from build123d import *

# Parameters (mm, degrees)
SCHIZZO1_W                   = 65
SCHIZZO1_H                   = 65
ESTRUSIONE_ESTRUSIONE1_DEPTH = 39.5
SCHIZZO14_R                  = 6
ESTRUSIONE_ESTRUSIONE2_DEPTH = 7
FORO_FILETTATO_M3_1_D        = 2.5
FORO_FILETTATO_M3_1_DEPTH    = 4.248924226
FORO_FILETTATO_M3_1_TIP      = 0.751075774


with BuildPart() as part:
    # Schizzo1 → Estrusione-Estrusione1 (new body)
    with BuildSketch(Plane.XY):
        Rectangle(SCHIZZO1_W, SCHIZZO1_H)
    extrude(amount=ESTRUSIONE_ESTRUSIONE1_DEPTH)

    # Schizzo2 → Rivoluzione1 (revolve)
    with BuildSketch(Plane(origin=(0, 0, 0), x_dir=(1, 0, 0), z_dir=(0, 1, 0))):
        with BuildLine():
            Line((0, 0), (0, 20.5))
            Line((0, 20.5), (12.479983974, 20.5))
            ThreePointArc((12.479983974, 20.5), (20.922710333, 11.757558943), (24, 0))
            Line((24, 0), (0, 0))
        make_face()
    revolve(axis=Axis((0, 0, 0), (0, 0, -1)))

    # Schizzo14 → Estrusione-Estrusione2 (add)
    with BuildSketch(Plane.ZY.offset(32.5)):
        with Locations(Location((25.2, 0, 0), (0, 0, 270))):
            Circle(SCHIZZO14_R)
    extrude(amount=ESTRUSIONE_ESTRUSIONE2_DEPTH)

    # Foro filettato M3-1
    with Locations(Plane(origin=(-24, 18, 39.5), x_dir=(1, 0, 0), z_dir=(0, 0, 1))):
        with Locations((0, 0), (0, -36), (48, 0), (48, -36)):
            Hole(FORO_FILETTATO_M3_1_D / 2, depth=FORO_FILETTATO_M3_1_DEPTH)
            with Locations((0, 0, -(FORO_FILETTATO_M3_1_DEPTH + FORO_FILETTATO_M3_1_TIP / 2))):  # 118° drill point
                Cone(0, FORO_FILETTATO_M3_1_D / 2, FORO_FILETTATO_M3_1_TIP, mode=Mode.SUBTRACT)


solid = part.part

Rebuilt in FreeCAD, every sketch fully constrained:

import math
import FreeCAD as App
import Part
import Sketcher
from FreeCAD import Vector
Q = App.Units.Quantity

doc = App.newDocument("Part")
body = doc.addObject("PartDesign::Body", "Body")

# Sketch on XY plane
sketch1 = doc.addObject("Sketcher::SketchObject", "Sketch")
body.addObject(sketch1)
sketch1.AttachmentSupport = (doc.XY_Plane, [""])
sketch1.MapMode = "FlatFace"
sketch1.addGeometry([
    Part.LineSegment(Vector(-32, 32, 0), Vector(-32, -32, 0)),
    Part.LineSegment(Vector(-32, -32, 0), Vector(32, -32, 0)),
    Part.LineSegment(Vector(32, -32, 0), Vector(32, 32, 0)),
    Part.LineSegment(Vector(32, 32, 0), Vector(-32, 32, 0)),
], False)
sketch1.addConstraint([
    Sketcher.Constraint("Coincident", 0, 2, 1, 1),
    Sketcher.Constraint("Coincident", 1, 2, 2, 1),
    Sketcher.Constraint("Coincident", 2, 2, 3, 1),
    Sketcher.Constraint("Coincident", 3, 2, 0, 1),
    Sketcher.Constraint("Vertical", 0),
    Sketcher.Constraint("Horizontal", 1),
    Sketcher.Constraint("Vertical", 2),
    Sketcher.Constraint("Horizontal", 3),
    Sketcher.Constraint("Symmetric", 0, 2, 2, 2, -1, 1),
    Sketcher.Constraint("Equal", 3, 0),
    Sketcher.Constraint("DistanceX", 1, 1, 1, 2, Q("65 mm")),
])
pad1 = doc.addObject("PartDesign::Pad", "Pad")
body.addObject(pad1)
pad1.Profile = sketch1
pad1.Length = 39.5

# Sketch on XZ plane
sketch2 = doc.addObject("Sketcher::SketchObject", "Sketch001")
body.addObject(sketch2)
sketch2.AttachmentSupport = (doc.XZ_Plane, [""])
sketch2.MapMode = "FlatFace"
sketch2.addGeometry([
    Part.LineSegment(Vector(0, -20, 0), Vector(0, 0, 0)),
    Part.LineSegment(Vector(0, 0, 0), Vector(24, 0, 0)),
    Part.ArcOfCircle(Part.Circle(Vector(0, 0, 0), Vector(0, 0, 1), 24), math.radians(-59), math.radians(0)),
    Part.LineSegment(Vector(12, -20, 0), Vector(0, -20, 0)),
], False)
sketch2.addConstraint([
    Sketcher.Constraint("Coincident", 0, 2, 1, 1),
    Sketcher.Constraint("Coincident", 1, 2, 2, 2),
    Sketcher.Constraint("Coincident", 2, 1, 3, 1),
    Sketcher.Constraint("Coincident", 3, 2, 0, 1),
    Sketcher.Constraint("Vertical", 0),
    Sketcher.Constraint("Horizontal", 1),
    Sketcher.Constraint("Horizontal", 3),
    Sketcher.Constraint("Coincident", 2, 3, -1, 1),
    Sketcher.Constraint("Coincident", 0, 2, -1, 1),
    Sketcher.Constraint("Radius", 2, Q("24 mm")),
    Sketcher.Constraint("DistanceY", 0, 1, 0, 2, Q("20.5 mm")),
])
revolution = doc.addObject("PartDesign::Revolution", "Revolution")
body.addObject(revolution)
revolution.Profile = sketch2
revolution.ReferenceAxis = (sketch2, ["V_Axis"])
revolution.Angle = 360

# Sketch on YZ plane
sketch3 = doc.addObject("Sketcher::SketchObject", "Sketch002")
body.addObject(sketch3)
sketch3.AttachmentSupport = (doc.YZ_Plane, [""])
sketch3.MapMode = "FlatFace"
sketch3.AttachmentOffset = App.Placement(Vector(0, 0, -32.5), App.Rotation())
sketch3.addGeometry(Part.Circle(Vector(0, 25, 0), Vector(0, 0, 1), 6), False)
sketch3.addConstraint([
    Sketcher.Constraint("PointOnObject", 0, 3, -2),
    Sketcher.Constraint("Diameter", 0, Q("12 mm")),
    Sketcher.Constraint("DistanceY", -1, 1, 0, 3, Q("25.2 mm")),
])
pad2 = doc.addObject("PartDesign::Pad", "Pad001")
body.addObject(pad2)
pad2.Profile = sketch3
pad2.Length = 7
pad2.Reversed = True

# Sketch on XY plane
sketch4 = doc.addObject("Sketcher::SketchObject", "Sketch003")
body.addObject(sketch4)
sketch4.AttachmentSupport = (doc.XY_Plane, [""])
sketch4.MapMode = "FlatFace"
sketch4.AttachmentOffset = App.Placement(Vector(0, 0, 39.5), App.Rotation())
sketch4.addGeometry([
    Part.Circle(Vector(-24, 18, 0), Vector(0, 0, 1), 1.2),
    Part.Circle(Vector(-24, -18, 0), Vector(0, 0, 1), 1.2),
    Part.Circle(Vector(24, 18, 0), Vector(0, 0, 1), 1.2),
    Part.Circle(Vector(24, -18, 0), Vector(0, 0, 1), 1.2),
], False)
sketch4.addConstraint([
    Sketcher.Constraint("Equal", 0, 1),
    Sketcher.Constraint("Equal", 1, 2),
    Sketcher.Constraint("Equal", 2, 3),
    Sketcher.Constraint("Symmetric", 1, 3, 2, 3, -1, 1),
    Sketcher.Constraint("Symmetric", 0, 3, 3, 3, -1, 1),
    Sketcher.Constraint("Symmetric", 0, 3, 2, 3, -2),
    Sketcher.Constraint("Diameter", 0, Q("2.5 mm")),
    Sketcher.Constraint("DistanceX", 0, 3, -1, 1, Q("24 mm")),
    Sketcher.Constraint("DistanceY", -1, 1, 0, 3, Q("18 mm")),
])
doc.recompute()
hole = doc.addObject("PartDesign::Hole", "Hole")
body.addObject(hole)
hole.Profile = sketch4
hole.ThreadType = "None"
hole.Diameter = 2.5
hole.DepthType = "Dimension"
hole.Depth = 4.248924
hole.DrillPoint = "Angled"
hole.DrillPointAngle = 118

doc.recompute()
